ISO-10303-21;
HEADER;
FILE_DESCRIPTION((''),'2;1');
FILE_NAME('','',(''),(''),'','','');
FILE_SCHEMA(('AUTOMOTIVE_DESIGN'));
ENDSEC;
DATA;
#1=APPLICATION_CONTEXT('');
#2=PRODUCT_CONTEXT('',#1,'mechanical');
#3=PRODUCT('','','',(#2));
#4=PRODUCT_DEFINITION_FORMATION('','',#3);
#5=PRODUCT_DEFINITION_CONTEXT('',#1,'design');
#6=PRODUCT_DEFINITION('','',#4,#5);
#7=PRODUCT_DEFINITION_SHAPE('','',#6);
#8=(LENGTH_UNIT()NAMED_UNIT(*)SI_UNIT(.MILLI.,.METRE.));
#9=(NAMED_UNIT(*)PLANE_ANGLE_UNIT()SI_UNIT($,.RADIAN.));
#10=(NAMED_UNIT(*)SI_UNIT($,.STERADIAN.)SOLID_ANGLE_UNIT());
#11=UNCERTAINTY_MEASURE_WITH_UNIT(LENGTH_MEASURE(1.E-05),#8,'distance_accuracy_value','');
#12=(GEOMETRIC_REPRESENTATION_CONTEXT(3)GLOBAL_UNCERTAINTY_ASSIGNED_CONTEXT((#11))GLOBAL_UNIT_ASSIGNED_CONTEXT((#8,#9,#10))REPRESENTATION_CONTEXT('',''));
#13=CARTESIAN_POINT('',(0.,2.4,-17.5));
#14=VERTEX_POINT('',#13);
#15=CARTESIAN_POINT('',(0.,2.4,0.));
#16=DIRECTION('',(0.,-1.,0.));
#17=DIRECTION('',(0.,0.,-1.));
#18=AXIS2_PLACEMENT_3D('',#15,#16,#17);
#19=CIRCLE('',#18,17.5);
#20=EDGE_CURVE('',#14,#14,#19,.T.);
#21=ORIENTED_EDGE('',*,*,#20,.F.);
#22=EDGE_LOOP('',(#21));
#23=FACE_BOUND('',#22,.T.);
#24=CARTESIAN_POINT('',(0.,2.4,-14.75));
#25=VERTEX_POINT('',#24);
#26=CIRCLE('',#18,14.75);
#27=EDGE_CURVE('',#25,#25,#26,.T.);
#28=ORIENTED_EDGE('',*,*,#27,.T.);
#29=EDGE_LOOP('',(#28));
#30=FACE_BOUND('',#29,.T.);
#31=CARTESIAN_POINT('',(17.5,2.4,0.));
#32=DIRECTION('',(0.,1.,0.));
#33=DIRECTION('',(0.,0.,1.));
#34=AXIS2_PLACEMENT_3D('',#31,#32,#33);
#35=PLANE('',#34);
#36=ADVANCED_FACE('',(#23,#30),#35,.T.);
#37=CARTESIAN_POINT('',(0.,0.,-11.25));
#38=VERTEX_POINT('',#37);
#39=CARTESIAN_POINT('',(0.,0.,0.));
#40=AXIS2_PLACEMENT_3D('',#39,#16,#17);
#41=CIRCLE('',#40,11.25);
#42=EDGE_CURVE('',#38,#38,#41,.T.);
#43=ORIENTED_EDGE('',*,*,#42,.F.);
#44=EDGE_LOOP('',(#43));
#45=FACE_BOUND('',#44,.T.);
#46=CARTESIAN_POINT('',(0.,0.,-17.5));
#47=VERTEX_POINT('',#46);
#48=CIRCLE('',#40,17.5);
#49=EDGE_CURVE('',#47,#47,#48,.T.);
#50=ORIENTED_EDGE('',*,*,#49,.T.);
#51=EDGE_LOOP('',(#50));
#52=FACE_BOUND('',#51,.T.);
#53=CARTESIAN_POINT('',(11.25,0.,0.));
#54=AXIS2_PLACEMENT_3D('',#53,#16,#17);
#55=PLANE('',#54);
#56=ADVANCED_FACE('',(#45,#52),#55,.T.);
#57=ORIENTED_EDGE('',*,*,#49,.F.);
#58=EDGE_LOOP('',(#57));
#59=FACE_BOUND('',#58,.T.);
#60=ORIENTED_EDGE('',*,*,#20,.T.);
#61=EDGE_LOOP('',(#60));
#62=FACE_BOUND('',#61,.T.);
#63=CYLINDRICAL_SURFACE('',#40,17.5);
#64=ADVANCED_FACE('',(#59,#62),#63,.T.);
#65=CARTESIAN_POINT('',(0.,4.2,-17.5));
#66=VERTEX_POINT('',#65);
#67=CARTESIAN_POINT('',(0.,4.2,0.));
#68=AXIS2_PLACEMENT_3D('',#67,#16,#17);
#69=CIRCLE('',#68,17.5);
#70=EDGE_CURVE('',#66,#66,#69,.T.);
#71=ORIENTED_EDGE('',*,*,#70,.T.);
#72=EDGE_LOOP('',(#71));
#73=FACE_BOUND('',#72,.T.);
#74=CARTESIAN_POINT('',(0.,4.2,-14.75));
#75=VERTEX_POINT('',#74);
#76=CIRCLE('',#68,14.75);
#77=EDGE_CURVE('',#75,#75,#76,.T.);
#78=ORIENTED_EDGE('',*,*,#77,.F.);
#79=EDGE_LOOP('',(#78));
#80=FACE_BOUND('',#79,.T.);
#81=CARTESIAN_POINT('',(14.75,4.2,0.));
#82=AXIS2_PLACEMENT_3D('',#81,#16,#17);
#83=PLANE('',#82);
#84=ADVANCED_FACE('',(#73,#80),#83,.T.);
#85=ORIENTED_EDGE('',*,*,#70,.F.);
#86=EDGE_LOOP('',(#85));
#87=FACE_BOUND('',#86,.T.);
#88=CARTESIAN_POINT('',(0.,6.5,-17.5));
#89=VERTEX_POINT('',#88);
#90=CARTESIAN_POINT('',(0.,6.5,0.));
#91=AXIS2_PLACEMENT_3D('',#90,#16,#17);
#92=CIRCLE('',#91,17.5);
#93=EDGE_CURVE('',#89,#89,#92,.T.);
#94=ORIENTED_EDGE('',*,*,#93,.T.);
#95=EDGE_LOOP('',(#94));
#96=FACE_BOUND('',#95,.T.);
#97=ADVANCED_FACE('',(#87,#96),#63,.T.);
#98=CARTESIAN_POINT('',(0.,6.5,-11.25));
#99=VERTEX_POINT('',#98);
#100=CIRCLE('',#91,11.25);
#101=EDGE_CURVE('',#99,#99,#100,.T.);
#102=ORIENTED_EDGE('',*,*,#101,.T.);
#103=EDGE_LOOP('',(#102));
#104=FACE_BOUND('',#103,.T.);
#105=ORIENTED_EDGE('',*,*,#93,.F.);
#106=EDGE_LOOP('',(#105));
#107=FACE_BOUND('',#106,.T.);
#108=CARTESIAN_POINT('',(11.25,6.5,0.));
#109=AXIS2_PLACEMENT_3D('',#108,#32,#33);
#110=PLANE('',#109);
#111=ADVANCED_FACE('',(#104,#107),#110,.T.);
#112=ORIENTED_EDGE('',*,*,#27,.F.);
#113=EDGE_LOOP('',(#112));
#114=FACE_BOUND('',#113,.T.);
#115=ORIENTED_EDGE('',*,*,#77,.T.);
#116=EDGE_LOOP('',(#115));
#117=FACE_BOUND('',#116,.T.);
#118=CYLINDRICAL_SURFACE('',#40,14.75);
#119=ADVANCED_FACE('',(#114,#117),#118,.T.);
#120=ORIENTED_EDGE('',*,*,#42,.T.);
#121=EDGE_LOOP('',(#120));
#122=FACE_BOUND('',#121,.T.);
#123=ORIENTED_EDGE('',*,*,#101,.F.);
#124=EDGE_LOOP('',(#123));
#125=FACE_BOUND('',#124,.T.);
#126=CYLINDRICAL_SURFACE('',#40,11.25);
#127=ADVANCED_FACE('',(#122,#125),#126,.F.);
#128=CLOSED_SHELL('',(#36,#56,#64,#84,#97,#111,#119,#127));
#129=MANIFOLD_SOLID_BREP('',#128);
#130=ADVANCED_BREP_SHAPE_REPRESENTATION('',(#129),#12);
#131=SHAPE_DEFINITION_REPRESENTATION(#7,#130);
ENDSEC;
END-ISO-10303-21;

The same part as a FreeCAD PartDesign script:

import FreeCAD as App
import Part
import Sketcher
from FreeCAD import Vector
Q = App.Units.Quantity

doc = App.newDocument("Part")
body = doc.addObject("PartDesign::Body", "Body")

sketch1 = body.newObject("Sketcher::SketchObject", "Sketch")
sketch1.AttachmentSupport = (doc.getObject("XY_Plane"), [""])
sketch1.MapMode = "FlatFace"
sketch1.addGeometry(Part.LineSegment(Vector(17.5, 2.4, 0), Vector(14.8, 2.4, 0)), False)
sketch1.addGeometry(Part.LineSegment(Vector(14.8, 2.4, 0), Vector(14.8, 4.2, 0)), False)
sketch1.addGeometry(Part.LineSegment(Vector(14.8, 4.2, 0), Vector(17.5, 4.2, 0)), False)
sketch1.addGeometry(Part.LineSegment(Vector(17.5, 4.2, 0), Vector(17.5, 6.5, 0)), False)
sketch1.addGeometry(Part.LineSegment(Vector(17.5, 6.5, 0), Vector(11.2, 6.5, 0)), False)
sketch1.addGeometry(Part.LineSegment(Vector(11.2, 6.5, 0), Vector(11.2, 0, 0)), False)
sketch1.addGeometry(Part.LineSegment(Vector(11.2, 0, 0), Vector(17.5, 0, 0)), False)
sketch1.addGeometry(Part.LineSegment(Vector(17.5, 0, 0), Vector(17.5, 2.4, 0)), False)
sketch1.addConstraint(Sketcher.Constraint("Coincident", 0, 2, 1, 1))
sketch1.addConstraint(Sketcher.Constraint("Coincident", 1, 2, 2, 1))
sketch1.addConstraint(Sketcher.Constraint("Coincident", 2, 2, 3, 1))
sketch1.addConstraint(Sketcher.Constraint("Coincident", 3, 2, 4, 1))
sketch1.addConstraint(Sketcher.Constraint("Coincident", 4, 2, 5, 1))
sketch1.addConstraint(Sketcher.Constraint("Coincident", 5, 2, 6, 1))
sketch1.addConstraint(Sketcher.Constraint("Coincident", 6, 2, 7, 1))
sketch1.addConstraint(Sketcher.Constraint("Coincident", 7, 2, 0, 1))
sketch1.addConstraint(Sketcher.Constraint("Horizontal", 0))
sketch1.addConstraint(Sketcher.Constraint("Vertical", 1))
sketch1.addConstraint(Sketcher.Constraint("Horizontal", 2))
sketch1.addConstraint(Sketcher.Constraint("Vertical", 3))
sketch1.addConstraint(Sketcher.Constraint("Horizontal", 4))
sketch1.addConstraint(Sketcher.Constraint("Vertical", 5))
sketch1.addConstraint(Sketcher.Constraint("Horizontal", 6))
sketch1.addConstraint(Sketcher.Constraint("Vertical", 7))
sketch1.addConstraint(Sketcher.Constraint("PointOnObject", 5, 2, -1))
sketch1.addConstraint(Sketcher.Constraint("Vertical", 3, 2, 6, 2))
sketch1.addConstraint(Sketcher.Constraint("DistanceY", 1, 1, 1, 2, Q("1.8 mm")))
sketch1.addConstraint(Sketcher.Constraint("DistanceY", 3, 1, 3, 2, Q("2.3 mm")))
sketch1.addConstraint(Sketcher.Constraint("DistanceY", 5, 2, 5, 1, Q("6.5 mm")))
sketch1.addConstraint(Sketcher.Constraint("DistanceX", 0, 2, 0, 1, Q("2.75 mm")))
sketch1.addConstraint(Sketcher.Constraint("DistanceX", 4, 2, 4, 1, Q("6.25 mm")))
sketch1.addConstraint(Sketcher.Constraint("DistanceX", -1, 1, 2, 2, Q("17.5 mm")))
revolution = body.newObject("PartDesign::Revolution", "Revolution")
revolution.Profile = sketch1
revolution.ReferenceAxis = (sketch1, ["V_Axis"])
revolution.Angle = 360

doc.recompute()
